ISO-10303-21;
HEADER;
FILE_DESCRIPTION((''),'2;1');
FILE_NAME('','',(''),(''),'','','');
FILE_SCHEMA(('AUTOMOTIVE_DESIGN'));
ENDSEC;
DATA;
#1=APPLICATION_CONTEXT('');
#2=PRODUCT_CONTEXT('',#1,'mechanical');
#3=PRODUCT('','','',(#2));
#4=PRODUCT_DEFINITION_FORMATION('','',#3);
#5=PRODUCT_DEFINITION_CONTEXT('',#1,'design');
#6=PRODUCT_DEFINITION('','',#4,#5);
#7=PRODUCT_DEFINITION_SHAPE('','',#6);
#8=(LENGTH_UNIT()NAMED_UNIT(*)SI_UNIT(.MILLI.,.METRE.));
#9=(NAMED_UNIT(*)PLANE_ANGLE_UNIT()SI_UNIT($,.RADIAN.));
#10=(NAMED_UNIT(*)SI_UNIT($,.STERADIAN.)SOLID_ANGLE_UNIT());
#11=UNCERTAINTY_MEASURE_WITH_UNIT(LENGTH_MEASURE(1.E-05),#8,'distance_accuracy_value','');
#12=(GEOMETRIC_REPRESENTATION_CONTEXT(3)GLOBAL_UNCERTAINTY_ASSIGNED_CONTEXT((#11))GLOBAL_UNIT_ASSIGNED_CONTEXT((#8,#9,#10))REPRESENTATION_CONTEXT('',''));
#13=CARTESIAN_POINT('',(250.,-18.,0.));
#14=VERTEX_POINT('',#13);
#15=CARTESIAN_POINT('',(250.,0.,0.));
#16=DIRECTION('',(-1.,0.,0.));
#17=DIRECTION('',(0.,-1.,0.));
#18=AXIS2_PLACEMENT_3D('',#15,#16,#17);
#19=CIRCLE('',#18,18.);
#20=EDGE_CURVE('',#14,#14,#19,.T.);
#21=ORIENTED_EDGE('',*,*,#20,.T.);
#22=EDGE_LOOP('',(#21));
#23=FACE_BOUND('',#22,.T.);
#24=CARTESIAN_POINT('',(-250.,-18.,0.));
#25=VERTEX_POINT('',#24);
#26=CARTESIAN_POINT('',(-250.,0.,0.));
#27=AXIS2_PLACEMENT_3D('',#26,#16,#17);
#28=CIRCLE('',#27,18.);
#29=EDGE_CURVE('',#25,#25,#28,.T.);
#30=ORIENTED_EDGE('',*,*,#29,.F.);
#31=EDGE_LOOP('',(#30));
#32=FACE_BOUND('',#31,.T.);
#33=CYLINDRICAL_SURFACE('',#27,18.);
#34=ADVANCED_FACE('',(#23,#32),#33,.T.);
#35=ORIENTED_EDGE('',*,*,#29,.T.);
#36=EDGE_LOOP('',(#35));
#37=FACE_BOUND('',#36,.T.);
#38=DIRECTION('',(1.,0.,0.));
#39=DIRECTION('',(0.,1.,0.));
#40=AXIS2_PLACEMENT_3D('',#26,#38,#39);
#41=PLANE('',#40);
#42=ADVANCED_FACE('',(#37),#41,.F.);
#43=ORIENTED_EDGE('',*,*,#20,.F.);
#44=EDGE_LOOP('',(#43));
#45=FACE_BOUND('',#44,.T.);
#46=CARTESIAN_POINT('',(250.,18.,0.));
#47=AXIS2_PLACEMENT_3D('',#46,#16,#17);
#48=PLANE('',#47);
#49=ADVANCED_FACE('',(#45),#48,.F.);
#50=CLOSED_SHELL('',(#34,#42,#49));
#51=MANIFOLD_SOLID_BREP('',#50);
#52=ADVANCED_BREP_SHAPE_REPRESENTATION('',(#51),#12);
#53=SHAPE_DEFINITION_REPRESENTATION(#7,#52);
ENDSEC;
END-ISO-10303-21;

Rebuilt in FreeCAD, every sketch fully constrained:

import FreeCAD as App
import Part
import Sketcher
Q = App.Units.Quantity


def add_polygon(sketch, points):
    """Adds a closed chain of lines whose ends are joined by coincident constraints."""
    first, n = sketch.GeometryCount, len(points)
    for a, b in zip(points, points[1:] + points[:1]):
        sketch.addGeometry(Part.LineSegment(App.Vector(*a, 0), App.Vector(*b, 0)), False)
    for i in range(n):
        sketch.addConstraint(Sketcher.Constraint("Coincident", first + i, 2, first + (i + 1) % n, 1))

doc = App.newDocument("Part")
params = doc.addObject("Spreadsheet::Sheet", "Params")
for row, (alias, value) in enumerate([
    ("sketch1_width", "500 mm"),
    ("sketch1_height", "18 mm"),
    ("revolution_angle", "360 deg"),
], start=1):
    params.set(f"A{row}", alias)
    params.set(f"B{row}", "=" + value)
    params.setAlias(f"B{row}", alias)

body = doc.addObject("PartDesign::Body", "Body")

sketch1 = body.newObject("Sketcher::SketchObject", "Sketch")
sketch1.AttachmentSupport = (doc.getObject("XY_Plane"), [""])
sketch1.MapMode = "FlatFace"
add_polygon(sketch1, [(-250, 18), (-250, 0), (250, 0), (250, 18)])
sketch1.addConstraint([
    Sketcher.Constraint("Vertical", 0),
    Sketcher.Constraint("Horizontal", 1),
    Sketcher.Constraint("Vertical", 2),
    Sketcher.Constraint("Horizontal", 3),
    Sketcher.Constraint("Symmetric", 0, 2, 1, 2, -1, 1),
    Sketcher.Constraint("DistanceX", 1, 1, 1, 2, Q("500 mm")),
    Sketcher.Constraint("DistanceY", 0, 2, 0, 1, Q("18 mm")),
])
sketch1.setExpression("Constraints[9]", "Params.sketch1_width")
sketch1.setExpression("Constraints[10]", "Params.sketch1_height")
revolution = body.newObject("PartDesign::Revolution", "Revolution")
revolution.Profile = sketch1
revolution.ReferenceAxis = (sketch1, ["H_Axis"])
revolution.setExpression("Angle", "Params.revolution_angle")

doc.recompute()
